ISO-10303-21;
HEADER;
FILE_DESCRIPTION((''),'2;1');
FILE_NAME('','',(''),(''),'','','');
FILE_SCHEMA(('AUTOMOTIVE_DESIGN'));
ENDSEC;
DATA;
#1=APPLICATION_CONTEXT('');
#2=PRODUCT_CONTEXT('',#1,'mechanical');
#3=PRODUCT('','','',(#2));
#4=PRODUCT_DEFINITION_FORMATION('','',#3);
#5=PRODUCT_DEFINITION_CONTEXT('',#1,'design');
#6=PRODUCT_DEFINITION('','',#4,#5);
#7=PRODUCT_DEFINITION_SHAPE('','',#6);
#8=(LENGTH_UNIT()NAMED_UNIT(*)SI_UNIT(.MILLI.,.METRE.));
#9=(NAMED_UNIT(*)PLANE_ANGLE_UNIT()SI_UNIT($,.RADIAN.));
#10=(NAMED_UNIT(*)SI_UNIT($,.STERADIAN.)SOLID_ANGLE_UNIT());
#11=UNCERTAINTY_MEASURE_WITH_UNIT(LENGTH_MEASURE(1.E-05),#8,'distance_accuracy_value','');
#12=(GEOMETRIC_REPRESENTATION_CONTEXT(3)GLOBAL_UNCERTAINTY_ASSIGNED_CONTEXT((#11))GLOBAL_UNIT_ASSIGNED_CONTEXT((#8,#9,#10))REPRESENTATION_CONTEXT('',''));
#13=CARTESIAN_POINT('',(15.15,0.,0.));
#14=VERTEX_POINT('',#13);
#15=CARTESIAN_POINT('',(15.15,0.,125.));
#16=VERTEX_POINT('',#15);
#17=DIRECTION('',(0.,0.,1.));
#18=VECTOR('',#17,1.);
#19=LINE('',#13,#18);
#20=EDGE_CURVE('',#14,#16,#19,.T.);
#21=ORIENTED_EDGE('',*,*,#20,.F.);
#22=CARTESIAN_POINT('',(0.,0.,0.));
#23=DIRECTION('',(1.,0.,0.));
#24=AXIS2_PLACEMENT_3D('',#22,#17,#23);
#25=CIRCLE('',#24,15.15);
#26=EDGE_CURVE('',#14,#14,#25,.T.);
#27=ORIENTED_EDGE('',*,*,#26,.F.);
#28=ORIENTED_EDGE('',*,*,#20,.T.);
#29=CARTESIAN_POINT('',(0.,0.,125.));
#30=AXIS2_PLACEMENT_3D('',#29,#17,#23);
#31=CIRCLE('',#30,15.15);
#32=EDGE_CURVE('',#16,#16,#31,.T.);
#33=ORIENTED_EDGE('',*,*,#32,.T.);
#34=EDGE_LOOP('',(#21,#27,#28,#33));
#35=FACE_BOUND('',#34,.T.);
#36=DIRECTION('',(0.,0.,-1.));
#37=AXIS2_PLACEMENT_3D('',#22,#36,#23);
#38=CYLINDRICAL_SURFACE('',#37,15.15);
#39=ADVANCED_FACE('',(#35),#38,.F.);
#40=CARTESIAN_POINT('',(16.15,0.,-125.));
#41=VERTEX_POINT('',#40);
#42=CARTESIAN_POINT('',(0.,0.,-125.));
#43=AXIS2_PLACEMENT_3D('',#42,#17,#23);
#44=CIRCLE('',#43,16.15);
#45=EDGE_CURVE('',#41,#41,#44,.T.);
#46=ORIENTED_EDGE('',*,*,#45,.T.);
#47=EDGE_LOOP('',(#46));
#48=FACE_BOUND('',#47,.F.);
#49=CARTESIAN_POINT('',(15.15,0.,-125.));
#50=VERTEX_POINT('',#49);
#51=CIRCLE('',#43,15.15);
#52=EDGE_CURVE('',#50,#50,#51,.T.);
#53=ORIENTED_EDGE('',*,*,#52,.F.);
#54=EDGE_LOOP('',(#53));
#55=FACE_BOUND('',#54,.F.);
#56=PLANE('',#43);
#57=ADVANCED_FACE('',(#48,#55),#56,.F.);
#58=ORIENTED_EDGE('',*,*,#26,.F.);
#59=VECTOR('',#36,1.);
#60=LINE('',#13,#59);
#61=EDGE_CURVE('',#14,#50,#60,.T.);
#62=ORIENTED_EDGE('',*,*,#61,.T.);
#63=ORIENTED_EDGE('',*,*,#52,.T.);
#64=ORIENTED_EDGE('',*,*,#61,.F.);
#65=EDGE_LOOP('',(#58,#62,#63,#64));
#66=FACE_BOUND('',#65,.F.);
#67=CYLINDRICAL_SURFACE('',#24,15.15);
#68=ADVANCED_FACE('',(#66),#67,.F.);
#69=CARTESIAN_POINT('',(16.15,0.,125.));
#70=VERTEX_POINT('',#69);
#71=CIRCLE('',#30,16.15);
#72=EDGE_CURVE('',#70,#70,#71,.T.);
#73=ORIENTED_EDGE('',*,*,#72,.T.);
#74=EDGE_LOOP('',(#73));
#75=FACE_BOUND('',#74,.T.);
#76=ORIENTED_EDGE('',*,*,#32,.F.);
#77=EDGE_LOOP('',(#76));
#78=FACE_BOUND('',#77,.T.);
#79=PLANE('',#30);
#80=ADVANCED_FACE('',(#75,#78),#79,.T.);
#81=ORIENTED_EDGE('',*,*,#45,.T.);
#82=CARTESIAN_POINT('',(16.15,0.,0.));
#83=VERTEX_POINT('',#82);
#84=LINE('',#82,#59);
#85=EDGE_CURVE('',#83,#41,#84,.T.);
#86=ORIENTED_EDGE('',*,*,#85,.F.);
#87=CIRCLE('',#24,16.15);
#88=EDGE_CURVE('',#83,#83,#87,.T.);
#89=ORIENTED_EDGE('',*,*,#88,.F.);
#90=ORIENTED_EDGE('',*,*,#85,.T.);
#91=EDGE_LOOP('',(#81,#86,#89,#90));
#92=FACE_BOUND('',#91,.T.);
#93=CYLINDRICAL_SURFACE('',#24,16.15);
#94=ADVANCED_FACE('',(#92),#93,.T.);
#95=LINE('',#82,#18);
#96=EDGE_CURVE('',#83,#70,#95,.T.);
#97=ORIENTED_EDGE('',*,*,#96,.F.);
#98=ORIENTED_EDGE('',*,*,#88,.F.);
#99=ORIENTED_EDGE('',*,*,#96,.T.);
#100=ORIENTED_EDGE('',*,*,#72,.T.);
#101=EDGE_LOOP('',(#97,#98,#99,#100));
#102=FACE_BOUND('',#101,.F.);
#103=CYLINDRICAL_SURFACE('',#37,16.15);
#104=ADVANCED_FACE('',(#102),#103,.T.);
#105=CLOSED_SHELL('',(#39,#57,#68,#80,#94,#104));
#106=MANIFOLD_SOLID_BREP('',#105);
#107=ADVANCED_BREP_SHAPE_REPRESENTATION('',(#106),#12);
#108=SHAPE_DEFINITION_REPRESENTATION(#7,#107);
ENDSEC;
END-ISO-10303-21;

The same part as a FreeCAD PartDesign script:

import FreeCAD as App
import Part
import Sketcher
Q = App.Units.Quantity

doc = App.newDocument("Part")
body = doc.addObject("PartDesign::Body", "Body")

sketch1 = body.newObject("Sketcher::SketchObject", "Sketch")
sketch1.AttachmentSupport = (doc.getObject("XY_Plane"), [""])
sketch1.MapMode = "FlatFace"
sketch1.addGeometry([
    Part.Circle(App.Vector(0, 0, 0), App.Vector(0, 0, 1), 16.15),
    Part.Circle(App.Vector(0, 0, 0), App.Vector(0, 0, 1), 15.15),
], False)
sketch1.addConstraint([
    Sketcher.Constraint("Coincident", 0, 3, -1, 1),
    Sketcher.Constraint("Coincident", 1, 3, -1, 1),
    Sketcher.Constraint("Diameter", 0, Q("32.3 mm")),
    Sketcher.Constraint("Diameter", 1, Q("30.3 mm")),
])
pad1 = body.newObject("PartDesign::Pad", "Pad")
pad1.Profile = sketch1
pad1.Length = 250
pad1.Midplane = True

doc.recompute()
